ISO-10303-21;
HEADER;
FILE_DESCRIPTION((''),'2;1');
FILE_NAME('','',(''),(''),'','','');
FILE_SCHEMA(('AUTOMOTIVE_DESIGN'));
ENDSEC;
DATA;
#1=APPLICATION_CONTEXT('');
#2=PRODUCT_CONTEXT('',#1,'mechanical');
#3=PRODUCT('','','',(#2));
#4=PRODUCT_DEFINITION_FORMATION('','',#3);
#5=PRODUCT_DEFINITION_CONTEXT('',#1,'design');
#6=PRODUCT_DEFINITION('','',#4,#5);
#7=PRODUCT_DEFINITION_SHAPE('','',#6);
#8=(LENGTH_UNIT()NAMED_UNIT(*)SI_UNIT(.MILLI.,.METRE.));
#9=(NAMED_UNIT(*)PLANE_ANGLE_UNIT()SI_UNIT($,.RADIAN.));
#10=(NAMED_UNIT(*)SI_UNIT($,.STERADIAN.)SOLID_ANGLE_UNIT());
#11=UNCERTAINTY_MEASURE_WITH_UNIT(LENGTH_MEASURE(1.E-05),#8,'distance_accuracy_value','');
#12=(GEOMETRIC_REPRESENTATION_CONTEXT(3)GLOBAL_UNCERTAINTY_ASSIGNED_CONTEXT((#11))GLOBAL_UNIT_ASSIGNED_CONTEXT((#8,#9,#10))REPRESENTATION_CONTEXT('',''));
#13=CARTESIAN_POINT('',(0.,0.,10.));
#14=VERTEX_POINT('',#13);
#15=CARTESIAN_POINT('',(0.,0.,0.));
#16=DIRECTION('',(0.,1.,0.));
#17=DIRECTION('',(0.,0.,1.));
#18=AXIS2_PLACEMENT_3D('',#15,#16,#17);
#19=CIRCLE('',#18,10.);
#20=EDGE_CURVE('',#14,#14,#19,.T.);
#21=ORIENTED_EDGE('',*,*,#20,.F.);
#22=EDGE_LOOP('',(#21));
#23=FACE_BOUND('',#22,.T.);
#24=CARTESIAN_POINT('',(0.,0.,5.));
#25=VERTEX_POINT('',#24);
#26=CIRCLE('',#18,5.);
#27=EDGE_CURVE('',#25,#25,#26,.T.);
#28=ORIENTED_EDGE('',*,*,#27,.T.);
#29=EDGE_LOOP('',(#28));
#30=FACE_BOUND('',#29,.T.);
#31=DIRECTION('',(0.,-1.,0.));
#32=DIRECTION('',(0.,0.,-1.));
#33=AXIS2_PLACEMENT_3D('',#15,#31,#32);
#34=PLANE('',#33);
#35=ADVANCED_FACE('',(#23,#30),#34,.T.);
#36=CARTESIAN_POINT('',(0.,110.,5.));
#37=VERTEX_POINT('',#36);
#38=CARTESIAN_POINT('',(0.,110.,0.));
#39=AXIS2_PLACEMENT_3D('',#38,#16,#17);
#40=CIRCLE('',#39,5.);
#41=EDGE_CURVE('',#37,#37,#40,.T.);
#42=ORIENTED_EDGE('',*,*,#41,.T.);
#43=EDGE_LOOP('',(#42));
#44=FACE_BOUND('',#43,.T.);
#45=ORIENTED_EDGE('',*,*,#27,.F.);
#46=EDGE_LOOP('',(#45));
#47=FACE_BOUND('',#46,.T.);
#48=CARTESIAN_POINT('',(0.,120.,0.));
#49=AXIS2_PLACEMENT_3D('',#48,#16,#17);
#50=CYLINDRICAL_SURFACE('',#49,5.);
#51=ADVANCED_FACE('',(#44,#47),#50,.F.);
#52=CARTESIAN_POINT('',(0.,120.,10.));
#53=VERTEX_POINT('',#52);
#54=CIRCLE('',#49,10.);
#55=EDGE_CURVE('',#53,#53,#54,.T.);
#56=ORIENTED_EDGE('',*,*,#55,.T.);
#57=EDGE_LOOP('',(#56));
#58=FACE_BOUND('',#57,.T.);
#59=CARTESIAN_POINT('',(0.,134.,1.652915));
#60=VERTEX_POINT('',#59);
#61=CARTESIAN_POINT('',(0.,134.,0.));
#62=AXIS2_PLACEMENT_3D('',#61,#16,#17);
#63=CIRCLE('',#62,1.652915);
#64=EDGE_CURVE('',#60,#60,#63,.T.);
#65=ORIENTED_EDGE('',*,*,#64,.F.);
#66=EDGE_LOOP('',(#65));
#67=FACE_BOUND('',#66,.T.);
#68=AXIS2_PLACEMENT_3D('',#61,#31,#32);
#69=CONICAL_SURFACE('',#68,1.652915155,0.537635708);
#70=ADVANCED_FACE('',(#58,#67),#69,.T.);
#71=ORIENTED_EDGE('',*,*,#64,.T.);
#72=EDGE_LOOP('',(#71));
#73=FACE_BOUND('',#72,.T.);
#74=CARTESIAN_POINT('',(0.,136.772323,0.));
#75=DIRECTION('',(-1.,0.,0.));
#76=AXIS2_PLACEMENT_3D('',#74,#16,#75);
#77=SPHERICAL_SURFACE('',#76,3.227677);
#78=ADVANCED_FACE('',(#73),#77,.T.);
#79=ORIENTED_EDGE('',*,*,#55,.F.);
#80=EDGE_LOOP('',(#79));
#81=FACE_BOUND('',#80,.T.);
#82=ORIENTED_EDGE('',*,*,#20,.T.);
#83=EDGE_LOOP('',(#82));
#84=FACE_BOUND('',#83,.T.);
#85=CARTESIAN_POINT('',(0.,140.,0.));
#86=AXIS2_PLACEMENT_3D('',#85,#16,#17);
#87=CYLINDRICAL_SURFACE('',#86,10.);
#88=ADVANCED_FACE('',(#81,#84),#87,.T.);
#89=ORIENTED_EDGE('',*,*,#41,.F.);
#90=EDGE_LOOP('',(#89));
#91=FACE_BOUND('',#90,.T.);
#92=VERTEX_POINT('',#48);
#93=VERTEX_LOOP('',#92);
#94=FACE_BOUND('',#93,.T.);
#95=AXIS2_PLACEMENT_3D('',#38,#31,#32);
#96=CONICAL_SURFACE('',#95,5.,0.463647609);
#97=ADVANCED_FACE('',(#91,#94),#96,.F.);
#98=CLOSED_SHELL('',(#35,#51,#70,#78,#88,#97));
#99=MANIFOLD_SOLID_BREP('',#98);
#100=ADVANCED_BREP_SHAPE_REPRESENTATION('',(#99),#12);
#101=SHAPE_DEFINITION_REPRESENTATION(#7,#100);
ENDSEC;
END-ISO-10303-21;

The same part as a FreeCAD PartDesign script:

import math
import FreeCAD as App
import Part
import Sketcher
Q = App.Units.Quantity

doc = App.newDocument("Part")
params = doc.addObject("Spreadsheet::Sheet", "Params")
for row, (alias, value) in enumerate([
    ("sketch1_width", "10 mm"),
    ("sketch1_height", "140 mm"),
    ("sketch1_height2", "120 mm"),
    ("revolution_angle", "360 deg"),
    ("sketch2_width", "5 mm"),
    ("sketch2_height", "110 mm"),
    ("sketch2_height2", "120 mm"),
    ("groove_angle", "360 deg"),
], start=1):
    params.set(f"A{row}", alias)
    params.set(f"B{row}", "=" + value)
    params.setAlias(f"B{row}", alias)

body = doc.addObject("PartDesign::Body", "Body")

sketch1 = body.newObject("Sketcher::SketchObject", "Sketch")
sketch1.AttachmentSupport = (doc.getObject("XY_Plane"), [""])
sketch1.MapMode = "FlatFace"
sketch1.addGeometry([
    Part.LineSegment(App.Vector(-10, 0, 0), App.Vector(0, 0, 0)),
    Part.LineSegment(App.Vector(0, 0, 0), App.Vector(0, 140, 0)),
    Part.ArcOfCircle(Part.Circle(App.Vector(0, 136.8, 0), App.Vector(0, 0, 1), 3.2), math.radians(90), math.radians(239)),
    Part.LineSegment(App.Vector(-1.7, 134, 0), App.Vector(-10, 120, 0)),
    Part.LineSegment(App.Vector(-10, 120, 0), App.Vector(-10, 0, 0)),
], False)
sketch1.addConstraint([
    Sketcher.Constraint("Coincident", 0, 2, 1, 1),
    Sketcher.Constraint("Coincident", 1, 2, 2, 1),
    Sketcher.Constraint("Coincident", 2, 2, 3, 1),
    Sketcher.Constraint("Coincident", 3, 2, 4, 1),
    Sketcher.Constraint("Coincident", 4, 2, 0, 1),
    Sketcher.Constraint("Horizontal", 0),
    Sketcher.Constraint("Vertical", 1),
    Sketcher.Constraint("Vertical", 4),
    Sketcher.Constraint("Coincident", 0, 2, -1, 1),
    Sketcher.Constraint("PointOnObject", 2, 3, -2),
    Sketcher.Constraint("DistanceX", 0, 1, 0, 2, Q("10 mm")),
    Sketcher.Constraint("DistanceY", 1, 1, 1, 2, Q("140 mm")),
    Sketcher.Constraint("DistanceY", 4, 2, 4, 1, Q("120 mm")),
    Sketcher.Constraint("DistanceY", -1, 1, 2, 2, Q("134 mm")),
    Sketcher.Constraint("Radius", 2, Q("3.227677 mm")),
])
sketch1.setExpression("Constraints[10]", "Params.sketch1_width")
sketch1.setExpression("Constraints[11]", "Params.sketch1_height")
sketch1.setExpression("Constraints[12]", "Params.sketch1_height2")
revolution = body.newObject("PartDesign::Revolution", "Revolution")
revolution.Profile = sketch1
revolution.ReferenceAxis = (sketch1, ["V_Axis"])
revolution.setExpression("Angle", "Params.revolution_angle")

sketch2 = body.newObject("Sketcher::SketchObject", "Sketch001")
sketch2.AttachmentSupport = (doc.getObject("XY_Plane"), [""])
sketch2.MapMode = "FlatFace"
sketch2.addGeometry([
    Part.LineSegment(App.Vector(0, 0, 0), App.Vector(5, 0, 0)),
    Part.LineSegment(App.Vector(5, 0, 0), App.Vector(5, 110, 0)),
    Part.LineSegment(App.Vector(5, 110, 0), App.Vector(0, 120, 0)),
    Part.LineSegment(App.Vector(0, 120, 0), App.Vector(0, 0, 0)),
], False)
sketch2.addConstraint([
    Sketcher.Constraint("Coincident", 0, 2, 1, 1),
    Sketcher.Constraint("Coincident", 1, 2, 2, 1),
    Sketcher.Constraint("Coincident", 2, 2, 3, 1),
    Sketcher.Constraint("Coincident", 3, 2, 0, 1),
    Sketcher.Constraint("Horizontal", 0),
    Sketcher.Constraint("Vertical", 1),
    Sketcher.Constraint("Vertical", 3),
    Sketcher.Constraint("Coincident", 3, 2, -1, 1),
    Sketcher.Constraint("DistanceX", 0, 1, 0, 2, Q("5 mm")),
    Sketcher.Constraint("DistanceY", 1, 1, 1, 2, Q("110 mm")),
    Sketcher.Constraint("DistanceY", 3, 2, 3, 1, Q("120 mm")),
])
sketch2.setExpression("Constraints[8]", "Params.sketch2_width")
sketch2.setExpression("Constraints[9]", "Params.sketch2_height")
sketch2.setExpression("Constraints[10]", "Params.sketch2_height2")
groove = body.newObject("PartDesign::Groove", "Groove")
groove.Profile = sketch2
groove.ReferenceAxis = (sketch2, ["V_Axis"])
groove.setExpression("Angle", "Params.groove_angle")

doc.recompute()
